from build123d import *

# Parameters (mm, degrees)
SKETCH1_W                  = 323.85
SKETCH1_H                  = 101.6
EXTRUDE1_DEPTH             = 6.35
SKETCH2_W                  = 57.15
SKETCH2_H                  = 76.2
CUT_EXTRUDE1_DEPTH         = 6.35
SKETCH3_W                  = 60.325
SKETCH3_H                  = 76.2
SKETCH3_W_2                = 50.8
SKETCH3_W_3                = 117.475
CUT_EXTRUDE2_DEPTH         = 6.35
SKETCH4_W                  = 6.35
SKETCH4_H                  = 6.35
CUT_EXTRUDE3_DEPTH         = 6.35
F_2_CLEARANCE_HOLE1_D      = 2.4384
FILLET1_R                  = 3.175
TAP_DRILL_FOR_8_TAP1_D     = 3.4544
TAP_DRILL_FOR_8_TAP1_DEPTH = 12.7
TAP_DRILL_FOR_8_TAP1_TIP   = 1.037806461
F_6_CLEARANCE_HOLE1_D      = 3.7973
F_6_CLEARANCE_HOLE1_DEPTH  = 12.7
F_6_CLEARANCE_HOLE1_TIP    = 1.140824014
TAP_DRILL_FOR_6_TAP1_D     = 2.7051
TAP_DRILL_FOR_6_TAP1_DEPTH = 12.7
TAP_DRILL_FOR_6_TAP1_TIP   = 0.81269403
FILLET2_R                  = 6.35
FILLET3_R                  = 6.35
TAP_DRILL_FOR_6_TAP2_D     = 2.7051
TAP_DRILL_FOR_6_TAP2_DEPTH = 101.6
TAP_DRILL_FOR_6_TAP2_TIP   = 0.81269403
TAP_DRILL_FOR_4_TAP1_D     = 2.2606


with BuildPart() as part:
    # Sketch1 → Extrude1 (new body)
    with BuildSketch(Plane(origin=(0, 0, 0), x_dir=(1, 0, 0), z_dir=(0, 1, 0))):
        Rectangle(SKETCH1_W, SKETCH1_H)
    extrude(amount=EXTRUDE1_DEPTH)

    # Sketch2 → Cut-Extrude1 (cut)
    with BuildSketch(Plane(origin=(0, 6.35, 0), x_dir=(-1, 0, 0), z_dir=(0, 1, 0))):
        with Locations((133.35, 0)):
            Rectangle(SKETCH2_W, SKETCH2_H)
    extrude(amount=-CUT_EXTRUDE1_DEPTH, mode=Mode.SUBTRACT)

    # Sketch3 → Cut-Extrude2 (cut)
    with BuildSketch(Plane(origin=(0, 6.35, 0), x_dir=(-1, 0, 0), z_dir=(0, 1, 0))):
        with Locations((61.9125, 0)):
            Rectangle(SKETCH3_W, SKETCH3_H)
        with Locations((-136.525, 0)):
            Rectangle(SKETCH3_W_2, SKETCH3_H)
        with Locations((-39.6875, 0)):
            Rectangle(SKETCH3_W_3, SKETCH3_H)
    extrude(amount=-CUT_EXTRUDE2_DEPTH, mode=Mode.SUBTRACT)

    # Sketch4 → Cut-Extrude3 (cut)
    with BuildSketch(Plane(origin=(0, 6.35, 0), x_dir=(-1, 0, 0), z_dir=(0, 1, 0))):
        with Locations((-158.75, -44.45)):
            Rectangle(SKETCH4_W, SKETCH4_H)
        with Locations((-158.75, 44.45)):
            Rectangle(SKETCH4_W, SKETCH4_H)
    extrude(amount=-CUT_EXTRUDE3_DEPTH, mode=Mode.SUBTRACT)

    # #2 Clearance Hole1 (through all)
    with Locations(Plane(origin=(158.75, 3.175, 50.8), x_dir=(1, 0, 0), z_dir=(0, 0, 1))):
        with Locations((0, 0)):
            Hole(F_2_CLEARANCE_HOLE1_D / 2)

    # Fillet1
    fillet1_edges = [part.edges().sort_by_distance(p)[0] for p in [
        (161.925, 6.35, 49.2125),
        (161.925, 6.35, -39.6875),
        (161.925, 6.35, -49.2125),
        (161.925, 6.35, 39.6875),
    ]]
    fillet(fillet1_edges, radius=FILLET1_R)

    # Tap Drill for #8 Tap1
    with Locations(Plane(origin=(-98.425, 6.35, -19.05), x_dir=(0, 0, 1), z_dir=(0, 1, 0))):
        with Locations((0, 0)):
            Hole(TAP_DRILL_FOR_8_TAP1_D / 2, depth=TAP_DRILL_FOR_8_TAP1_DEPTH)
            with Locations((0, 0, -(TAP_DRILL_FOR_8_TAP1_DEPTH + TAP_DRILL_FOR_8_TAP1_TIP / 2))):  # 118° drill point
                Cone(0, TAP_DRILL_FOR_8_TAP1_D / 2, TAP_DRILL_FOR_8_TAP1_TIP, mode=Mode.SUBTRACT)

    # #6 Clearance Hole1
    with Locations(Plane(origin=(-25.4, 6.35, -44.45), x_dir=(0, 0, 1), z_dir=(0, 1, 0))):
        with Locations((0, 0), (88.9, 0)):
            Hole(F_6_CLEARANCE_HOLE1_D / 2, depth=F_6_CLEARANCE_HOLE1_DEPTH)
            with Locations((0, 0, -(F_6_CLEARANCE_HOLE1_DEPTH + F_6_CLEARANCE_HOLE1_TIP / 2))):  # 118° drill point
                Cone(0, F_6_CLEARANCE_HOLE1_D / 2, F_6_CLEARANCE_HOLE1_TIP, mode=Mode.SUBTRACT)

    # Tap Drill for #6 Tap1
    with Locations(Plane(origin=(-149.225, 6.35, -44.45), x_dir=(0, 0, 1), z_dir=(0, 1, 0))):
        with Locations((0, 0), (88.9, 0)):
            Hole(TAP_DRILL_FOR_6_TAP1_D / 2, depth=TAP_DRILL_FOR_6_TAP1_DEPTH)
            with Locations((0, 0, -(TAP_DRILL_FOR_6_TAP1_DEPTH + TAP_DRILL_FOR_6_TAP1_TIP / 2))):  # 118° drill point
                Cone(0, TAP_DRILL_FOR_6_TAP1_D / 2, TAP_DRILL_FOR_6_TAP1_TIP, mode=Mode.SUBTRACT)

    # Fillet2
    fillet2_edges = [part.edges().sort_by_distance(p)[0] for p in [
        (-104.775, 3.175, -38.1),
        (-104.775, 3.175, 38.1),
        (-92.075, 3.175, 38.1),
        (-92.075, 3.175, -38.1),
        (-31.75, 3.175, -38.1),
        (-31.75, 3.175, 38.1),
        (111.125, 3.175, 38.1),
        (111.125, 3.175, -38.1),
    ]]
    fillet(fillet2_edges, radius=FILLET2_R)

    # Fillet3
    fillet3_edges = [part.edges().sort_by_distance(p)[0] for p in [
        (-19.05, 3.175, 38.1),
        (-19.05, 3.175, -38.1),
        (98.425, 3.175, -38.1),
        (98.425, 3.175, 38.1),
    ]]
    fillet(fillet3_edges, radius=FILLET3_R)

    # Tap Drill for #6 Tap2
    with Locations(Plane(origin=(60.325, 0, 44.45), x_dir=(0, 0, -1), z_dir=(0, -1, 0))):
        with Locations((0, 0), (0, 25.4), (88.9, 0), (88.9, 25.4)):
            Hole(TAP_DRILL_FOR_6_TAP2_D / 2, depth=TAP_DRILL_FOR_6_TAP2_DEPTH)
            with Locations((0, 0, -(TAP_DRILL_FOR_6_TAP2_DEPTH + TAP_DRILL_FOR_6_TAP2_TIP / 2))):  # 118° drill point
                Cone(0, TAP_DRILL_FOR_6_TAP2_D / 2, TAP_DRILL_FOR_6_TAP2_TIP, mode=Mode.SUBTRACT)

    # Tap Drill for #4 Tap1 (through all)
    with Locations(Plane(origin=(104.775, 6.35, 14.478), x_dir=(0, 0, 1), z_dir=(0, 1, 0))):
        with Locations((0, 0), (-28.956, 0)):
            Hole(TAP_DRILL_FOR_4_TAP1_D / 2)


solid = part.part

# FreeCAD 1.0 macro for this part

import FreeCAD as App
import Part
import Sketcher

V = App.Vector
Q = App.Units.Quantity


def edges_at(feature, points):
    """Names of the edges that pass closest to the given points."""
    edges = feature.Shape.Edges
    near = lambda p: min(range(len(edges)), key=lambda i: edges[i].distToShape(Part.Vertex(*p))[0])
    return sorted({f"Edge{near(p) + 1}" for p in points})


def add_polygon(sketch, points):
    """Adds a closed chain of lines whose ends are joined by coincident constraints."""
    first, n = sketch.GeometryCount, len(points)
    for a, b in zip(points, points[1:] + points[:1]):
        sketch.addGeometry(Part.LineSegment(App.Vector(*a, 0), App.Vector(*b, 0)), False)
    for i in range(n):
        sketch.addConstraint(Sketcher.Constraint("Coincident", first + i, 2, first + (i + 1) % n, 1))

doc = App.newDocument("Part")
body = doc.addObject("PartDesign::Body", "Body")

# Sketch on XZ plane
sketch1 = body.newObject("Sketcher::SketchObject", "Sketch")
sketch1.AttachmentSupport = (doc.getObject("XZ_Plane"), [""])
sketch1.MapMode = "FlatFace"
add_polygon(sketch1, [(-162, -51), (-162, 51), (162, 51), (162, -51)])  # lines 0-3
sketch1.addConstraint([
    Sketcher.Constraint("Vertical", 0),
    Sketcher.Constraint("Horizontal", 1),
    Sketcher.Constraint("Vertical", 2),
    Sketcher.Constraint("Horizontal", 3),
    Sketcher.Constraint("Symmetric", 0, 2, 2, 2, -1, 1),
    Sketcher.Constraint("DistanceY", 0, 1, 0, 2, Q("4 in")),
    Sketcher.Constraint("DistanceX", 1, 1, 1, 2, Q("12.75 in")),
])
pad1 = body.newObject("PartDesign::Pad", "Pad")
pad1.Profile = sketch1
pad1.Length = Q("0.25 in")
pad1.Reversed = True

# Sketch on XZ plane
sketch2 = body.newObject("Sketcher::SketchObject", "Sketch001")
sketch2.AttachmentSupport = (doc.getObject("XZ_Plane"), [""])
sketch2.MapMode = "FlatFace"
sketch2.AttachmentOffset = App.Placement(V(0, 0, -0.25 * 25.4), App.Rotation())
add_polygon(sketch2, [(-105, 38), (-105, -38), (-162, -38), (-162, 38)])  # lines 0-3
sketch2.addConstraint([
    Sketcher.Constraint("Vertical", 0),
    Sketcher.Constraint("Horizontal", 1),
    Sketcher.Constraint("Vertical", 2),
    Sketcher.Constraint("Horizontal", 3),
    Sketcher.Constraint("DistanceY", 0, 2, 0, 1, Q("3 in")),
    Sketcher.Constraint("DistanceX", 1, 2, 1, 1, Q("2.25 in")),
    Sketcher.Constraint("DistanceY", 0, 2, -1, 1, Q("1.5 in")),
    Sketcher.Constraint("DistanceX", 0, 2, -1, 1, Q("4.125 in")),
])
pocket1 = body.newObject("PartDesign::Pocket", "Pocket")
pocket1.Profile = sketch2
pocket1.Length = Q("0.25 in")
pocket1.Reversed = True

# Sketch on XZ plane
sketch3 = body.newObject("Sketcher::SketchObject", "Sketch002")
sketch3.AttachmentSupport = (doc.getObject("XZ_Plane"), [""])
sketch3.MapMode = "FlatFace"
sketch3.AttachmentOffset = App.Placement(V(0, 0, -0.25 * 25.4), App.Rotation())
add_polygon(sketch3, [(-32, 38), (-32, -38), (-92, -38), (-92, 38)])  # lines 0-3
add_polygon(sketch3, [(162, 38), (162, -38), (111, -38), (111, 38)])  # lines 4-7
add_polygon(sketch3, [(98, 38), (98, -38), (-19, -38), (-19, 38)])  # lines 8-11
sketch3.addConstraint([
    Sketcher.Constraint("Vertical", 0),
    Sketcher.Constraint("Horizontal", 1),
    Sketcher.Constraint("Vertical", 2),
    Sketcher.Constraint("Horizontal", 3),
    Sketcher.Constraint("Vertical", 4),
    Sketcher.Constraint("Horizontal", 5),
    Sketcher.Constraint("Vertical", 6),
    Sketcher.Constraint("Horizontal", 7),
    Sketcher.Constraint("Vertical", 8),
    Sketcher.Constraint("Horizontal", 9),
    Sketcher.Constraint("Vertical", 10),
    Sketcher.Constraint("Horizontal", 11),
    Sketcher.Constraint("Horizontal", 1, 2, 4, 2),
    Sketcher.Constraint("Horizontal", 3, 2, 6, 2),
    Sketcher.Constraint("Horizontal", 5, 2, 8, 2),
    Sketcher.Constraint("Horizontal", 7, 2, 10, 2),
    Sketcher.Constraint("DistanceX", 5, 2, 5, 1, Q("2 in")),
    Sketcher.Constraint("DistanceY", 0, 2, 0, 1, Q("3 in")),
    Sketcher.Constraint("DistanceX", 1, 2, 4, 2, Q("10 in")),
    Sketcher.Constraint("DistanceY", 0, 2, -1, 1, Q("1.5 in")),
    Sketcher.Constraint("DistanceX", 8, 2, 5, 2, Q("0.5 in")),
    Sketcher.Constraint("DistanceX", 0, 2, 9, 2, Q("0.5 in")),
    Sketcher.Constraint("DistanceX", 1, 2, 1, 1, Q("2.375 in")),
    Sketcher.Constraint("DistanceX", 0, 2, -1, 1, Q("1.25 in")),
])
pocket2 = body.newObject("PartDesign::Pocket", "Pocket001")
pocket2.Profile = sketch3
pocket2.Length = Q("0.25 in")
pocket2.Reversed = True

# Sketch on XZ plane
sketch4 = body.newObject("Sketcher::SketchObject", "Sketch003")
sketch4.AttachmentSupport = (doc.getObject("XZ_Plane"), [""])
sketch4.MapMode = "FlatFace"
sketch4.AttachmentOffset = App.Placement(V(0, 0, -0.25 * 25.4), App.Rotation())
add_polygon(sketch4, [(162, -41), (162, -48), (156, -48), (156, -41)])  # lines 0-3
add_polygon(sketch4, [(162, 48), (162, 41), (156, 41), (156, 48)])  # lines 4-7
sketch4.addConstraint([
    Sketcher.Constraint("Vertical", 0),
    Sketcher.Constraint("Horizontal", 1),
    Sketcher.Constraint("Vertical", 2),
    Sketcher.Constraint("Horizontal", 3),
    Sketcher.Constraint("Vertical", 4),
    Sketcher.Constraint("Horizontal", 5),
    Sketcher.Constraint("Vertical", 6),
    Sketcher.Constraint("Horizontal", 7),
    Sketcher.Constraint("Symmetric", 3, 2, 4, 2, -1),
    Sketcher.Constraint("Symmetric", 1, 2, 6, 2, -1),
    Sketcher.Constraint("Equal", 7, 0),
    Sketcher.Constraint("DistanceX", 1, 2, 1, 1, Q("0.25 in")),
    Sketcher.Constraint("DistanceY", 0, 2, 4, 2, Q("3.5 in")),
    Sketcher.Constraint("DistanceX", -1, 1, 0, 2, Q("6.375 in")),
])
pocket3 = body.newObject("PartDesign::Pocket", "Pocket002")
pocket3.Profile = sketch4
pocket3.Length = Q("0.25 in")
pocket3.Reversed = True

# Sketch on XY plane
sketch5 = body.newObject("Sketcher::SketchObject", "Sketch004")
sketch5.AttachmentSupport = (doc.getObject("XY_Plane"), [""])
sketch5.MapMode = "FlatFace"
sketch5.AttachmentOffset = App.Placement(V(0, 0, 2 * 25.4), App.Rotation())
sketch5.addGeometry(Part.Circle(V(158.8, 3.2, 0), V(0, 0, 1), 1.2), False)
sketch5.addConstraint([
    Sketcher.Constraint("Diameter", 0, Q("0.096 in")),
    Sketcher.Constraint("DistanceX", -1, 1, 0, 3, Q("6.25 in")),
    Sketcher.Constraint("DistanceY", -1, 1, 0, 3, Q("0.125 in")),
])
doc.recompute()
hole = body.newObject("PartDesign::Hole", "Hole")
hole.Profile = sketch5
hole.ThreadType = "None"
hole.Diameter = Q("0.096 in")
hole.DepthType = "ThroughAll"
doc.recompute()

fillet = body.newObject("PartDesign::Fillet", "Fillet")
fillet.Base = (hole, edges_at(hole, [
    (161.925, 6.35, 49.212),
    (161.925, 6.35, -39.688),
    (161.925, 6.35, -49.212),
    (161.925, 6.35, 39.688),
]))
fillet.Radius = Q("0.125 in")

# Sketch on XZ plane
sketch6 = body.newObject("Sketcher::SketchObject", "Sketch005")
sketch6.AttachmentSupport = (doc.getObject("XZ_Plane"), [""])
sketch6.MapMode = "FlatFace"
sketch6.AttachmentOffset = App.Placement(V(0, 0, -0.25 * 25.4), App.Rotation())
sketch6.addGeometry(Part.Circle(V(-98.4, -19.1, 0), V(0, 0, 1), 1.7), False)
sketch6.addConstraint([
    Sketcher.Constraint("Diameter", 0, Q("0.136 in")),
    Sketcher.Constraint("DistanceY", 0, 3, -1, 1, Q("0.75 in")),
    Sketcher.Constraint("DistanceX", 0, 3, -1, 1, Q("3.875 in")),
])
doc.recompute()
hole2 = body.newObject("PartDesign::Hole", "Hole001")
hole2.Profile = sketch6
hole2.ThreadType = "None"
hole2.Diameter = Q("0.136 in")
hole2.DepthType = "Dimension"
hole2.Depth = Q("0.5 in")
hole2.DrillPoint = "Angled"
hole2.DrillPointAngle = 118
hole2.Reversed = True

# Sketch on XZ plane
sketch7 = body.newObject("Sketcher::SketchObject", "Sketch006")
sketch7.AttachmentSupport = (doc.getObject("XZ_Plane"), [""])
sketch7.MapMode = "FlatFace"
sketch7.AttachmentOffset = App.Placement(V(0, 0, -0.25 * 25.4), App.Rotation())
sketch7.addGeometry([
    Part.Circle(V(-25.4, -44.5, 0), V(0, 0, 1), 1.9),
    Part.Circle(V(-25.4, 44.5, 0), V(0, 0, 1), 1.9),
], False)
sketch7.addConstraint([
    Sketcher.Constraint("Equal", 0, 1),
    Sketcher.Constraint("Symmetric", 0, 3, 1, 3, -1),
    Sketcher.Constraint("DistanceX", 0, 3, -1, 1, Q("1 in")),
    Sketcher.Constraint("Diameter", 0, Q("0.1495 in")),
    Sketcher.Constraint("DistanceY", 0, 3, 1, 3, Q("3.5 in")),
])
doc.recompute()
hole3 = body.newObject("PartDesign::Hole", "Hole002")
hole3.Profile = sketch7
hole3.ThreadType = "None"
hole3.Diameter = Q("0.1495 in")
hole3.DepthType = "Dimension"
hole3.Depth = Q("0.5 in")
hole3.DrillPoint = "Angled"
hole3.DrillPointAngle = 118
hole3.Reversed = True

# Sketch on XZ plane
sketch8 = body.newObject("Sketcher::SketchObject", "Sketch007")
sketch8.AttachmentSupport = (doc.getObject("XZ_Plane"), [""])
sketch8.MapMode = "FlatFace"
sketch8.AttachmentOffset = App.Placement(V(0, 0, -0.25 * 25.4), App.Rotation())
sketch8.addGeometry([
    Part.Circle(V(-149.2, -44.5, 0), V(0, 0, 1), 1.4),
    Part.Circle(V(-149.2, 44.5, 0), V(0, 0, 1), 1.4),
], False)
sketch8.addConstraint([
    Sketcher.Constraint("Equal", 0, 1),
    Sketcher.Constraint("Symmetric", 0, 3, 1, 3, -1),
    Sketcher.Constraint("Diameter", 0, Q("0.1065 in")),
    Sketcher.Constraint("DistanceY", 0, 3, 1, 3, Q("3.5 in")),
    Sketcher.Constraint("DistanceX", 0, 3, -1, 1, Q("5.875 in")),
])
doc.recompute()
hole4 = body.newObject("PartDesign::Hole", "Hole003")
hole4.Profile = sketch8
hole4.ThreadType = "None"
hole4.Diameter = Q("0.1065 in")
hole4.DepthType = "Dimension"
hole4.Depth = Q("0.5 in")
hole4.DrillPoint = "Angled"
hole4.DrillPointAngle = 118
hole4.Reversed = True
doc.recompute()

fillet2 = body.newObject("PartDesign::Fillet", "Fillet001")
fillet2.Base = (hole4, edges_at(hole4, [
    (-104.775, 3.175, -38.1),
    (-104.775, 3.175, 38.1),
    (-92.075, 3.175, 38.1),
    (-92.075, 3.175, -38.1),
    (-31.75, 3.175, -38.1),
    (-31.75, 3.175, 38.1),
    (111.125, 3.175, 38.1),
    (111.125, 3.175, -38.1),
]))
fillet2.Radius = Q("0.25 in")
doc.recompute()

fillet3 = body.newObject("PartDesign::Fillet", "Fillet002")
fillet3.Base = (fillet2, edges_at(fillet2, [
    (-19.05, 3.175, 38.1),
    (-19.05, 3.175, -38.1),
    (98.425, 3.175, -38.1),
    (98.425, 3.175, 38.1),
]))
fillet3.Radius = Q("0.25 in")

# Sketch on XZ plane
sketch9 = body.newObject("Sketcher::SketchObject", "Sketch008")
sketch9.AttachmentSupport = (doc.getObject("XZ_Plane"), [""])
sketch9.MapMode = "FlatFace"
sketch9.addGeometry([
    Part.Circle(V(60.3, 44.5, 0), V(0, 0, 1), 1.4),
    Part.Circle(V(85.7, 44.5, 0), V(0, 0, 1), 1.4),
    Part.Circle(V(60.3, -44.5, 0), V(0, 0, 1), 1.4),
    Part.Circle(V(85.7, -44.5, 0), V(0, 0, 1), 1.4),
], False)
sketch9.addConstraint([
    Sketcher.Constraint("Equal", 0, 1),
    Sketcher.Constraint("Equal", 1, 2),
    Sketcher.Constraint("Equal", 2, 3),
    Sketcher.Constraint("Symmetric", 0, 3, 2, 3, -1),
    Sketcher.Constraint("Symmetric", 1, 3, 3, 3, -1),
    Sketcher.Constraint("Horizontal", 0, 3, 1, 3),
    Sketcher.Constraint("DistanceX", 0, 3, 1, 3, Q("1 in")),
    Sketcher.Constraint("Diameter", 0, Q("0.1065 in")),
    Sketcher.Constraint("DistanceY", 2, 3, 0, 3, Q("3.5 in")),
    Sketcher.Constraint("DistanceX", -1, 1, 0, 3, Q("2.375 in")),
])
doc.recompute()
hole5 = body.newObject("PartDesign::Hole", "Hole004")
hole5.Profile = sketch9
hole5.ThreadType = "None"
hole5.Diameter = Q("0.1065 in")
hole5.DepthType = "Dimension"
hole5.Depth = Q("4 in")
hole5.DrillPoint = "Angled"
hole5.DrillPointAngle = 118

# Sketch on XZ plane
sketch10 = body.newObject("Sketcher::SketchObject", "Sketch009")
sketch10.AttachmentSupport = (doc.getObject("XZ_Plane"), [""])
sketch10.MapMode = "FlatFace"
sketch10.AttachmentOffset = App.Placement(V(0, 0, -0.25 * 25.4), App.Rotation())
sketch10.addGeometry([
    Part.Circle(V(104.8, 14.5, 0), V(0, 0, 1), 1.1),
    Part.Circle(V(104.8, -14.5, 0), V(0, 0, 1), 1.1),
], False)
sketch10.addConstraint([
    Sketcher.Constraint("Equal", 0, 1),
    Sketcher.Constraint("Symmetric", 0, 3, 1, 3, -1),
    Sketcher.Constraint("Diameter", 0, Q("0.089 in")),
    Sketcher.Constraint("DistanceY", -1, 1, 0, 3, Q("0.57 in")),
    Sketcher.Constraint("DistanceX", -1, 1, 0, 3, Q("4.125 in")),
])
doc.recompute()
hole6 = body.newObject("PartDesign::Hole", "Hole005")
hole6.Profile = sketch10
hole6.ThreadType = "None"
hole6.Diameter = Q("0.089 in")
hole6.DepthType = "ThroughAll"
hole6.Reversed = True

doc.recompute()
